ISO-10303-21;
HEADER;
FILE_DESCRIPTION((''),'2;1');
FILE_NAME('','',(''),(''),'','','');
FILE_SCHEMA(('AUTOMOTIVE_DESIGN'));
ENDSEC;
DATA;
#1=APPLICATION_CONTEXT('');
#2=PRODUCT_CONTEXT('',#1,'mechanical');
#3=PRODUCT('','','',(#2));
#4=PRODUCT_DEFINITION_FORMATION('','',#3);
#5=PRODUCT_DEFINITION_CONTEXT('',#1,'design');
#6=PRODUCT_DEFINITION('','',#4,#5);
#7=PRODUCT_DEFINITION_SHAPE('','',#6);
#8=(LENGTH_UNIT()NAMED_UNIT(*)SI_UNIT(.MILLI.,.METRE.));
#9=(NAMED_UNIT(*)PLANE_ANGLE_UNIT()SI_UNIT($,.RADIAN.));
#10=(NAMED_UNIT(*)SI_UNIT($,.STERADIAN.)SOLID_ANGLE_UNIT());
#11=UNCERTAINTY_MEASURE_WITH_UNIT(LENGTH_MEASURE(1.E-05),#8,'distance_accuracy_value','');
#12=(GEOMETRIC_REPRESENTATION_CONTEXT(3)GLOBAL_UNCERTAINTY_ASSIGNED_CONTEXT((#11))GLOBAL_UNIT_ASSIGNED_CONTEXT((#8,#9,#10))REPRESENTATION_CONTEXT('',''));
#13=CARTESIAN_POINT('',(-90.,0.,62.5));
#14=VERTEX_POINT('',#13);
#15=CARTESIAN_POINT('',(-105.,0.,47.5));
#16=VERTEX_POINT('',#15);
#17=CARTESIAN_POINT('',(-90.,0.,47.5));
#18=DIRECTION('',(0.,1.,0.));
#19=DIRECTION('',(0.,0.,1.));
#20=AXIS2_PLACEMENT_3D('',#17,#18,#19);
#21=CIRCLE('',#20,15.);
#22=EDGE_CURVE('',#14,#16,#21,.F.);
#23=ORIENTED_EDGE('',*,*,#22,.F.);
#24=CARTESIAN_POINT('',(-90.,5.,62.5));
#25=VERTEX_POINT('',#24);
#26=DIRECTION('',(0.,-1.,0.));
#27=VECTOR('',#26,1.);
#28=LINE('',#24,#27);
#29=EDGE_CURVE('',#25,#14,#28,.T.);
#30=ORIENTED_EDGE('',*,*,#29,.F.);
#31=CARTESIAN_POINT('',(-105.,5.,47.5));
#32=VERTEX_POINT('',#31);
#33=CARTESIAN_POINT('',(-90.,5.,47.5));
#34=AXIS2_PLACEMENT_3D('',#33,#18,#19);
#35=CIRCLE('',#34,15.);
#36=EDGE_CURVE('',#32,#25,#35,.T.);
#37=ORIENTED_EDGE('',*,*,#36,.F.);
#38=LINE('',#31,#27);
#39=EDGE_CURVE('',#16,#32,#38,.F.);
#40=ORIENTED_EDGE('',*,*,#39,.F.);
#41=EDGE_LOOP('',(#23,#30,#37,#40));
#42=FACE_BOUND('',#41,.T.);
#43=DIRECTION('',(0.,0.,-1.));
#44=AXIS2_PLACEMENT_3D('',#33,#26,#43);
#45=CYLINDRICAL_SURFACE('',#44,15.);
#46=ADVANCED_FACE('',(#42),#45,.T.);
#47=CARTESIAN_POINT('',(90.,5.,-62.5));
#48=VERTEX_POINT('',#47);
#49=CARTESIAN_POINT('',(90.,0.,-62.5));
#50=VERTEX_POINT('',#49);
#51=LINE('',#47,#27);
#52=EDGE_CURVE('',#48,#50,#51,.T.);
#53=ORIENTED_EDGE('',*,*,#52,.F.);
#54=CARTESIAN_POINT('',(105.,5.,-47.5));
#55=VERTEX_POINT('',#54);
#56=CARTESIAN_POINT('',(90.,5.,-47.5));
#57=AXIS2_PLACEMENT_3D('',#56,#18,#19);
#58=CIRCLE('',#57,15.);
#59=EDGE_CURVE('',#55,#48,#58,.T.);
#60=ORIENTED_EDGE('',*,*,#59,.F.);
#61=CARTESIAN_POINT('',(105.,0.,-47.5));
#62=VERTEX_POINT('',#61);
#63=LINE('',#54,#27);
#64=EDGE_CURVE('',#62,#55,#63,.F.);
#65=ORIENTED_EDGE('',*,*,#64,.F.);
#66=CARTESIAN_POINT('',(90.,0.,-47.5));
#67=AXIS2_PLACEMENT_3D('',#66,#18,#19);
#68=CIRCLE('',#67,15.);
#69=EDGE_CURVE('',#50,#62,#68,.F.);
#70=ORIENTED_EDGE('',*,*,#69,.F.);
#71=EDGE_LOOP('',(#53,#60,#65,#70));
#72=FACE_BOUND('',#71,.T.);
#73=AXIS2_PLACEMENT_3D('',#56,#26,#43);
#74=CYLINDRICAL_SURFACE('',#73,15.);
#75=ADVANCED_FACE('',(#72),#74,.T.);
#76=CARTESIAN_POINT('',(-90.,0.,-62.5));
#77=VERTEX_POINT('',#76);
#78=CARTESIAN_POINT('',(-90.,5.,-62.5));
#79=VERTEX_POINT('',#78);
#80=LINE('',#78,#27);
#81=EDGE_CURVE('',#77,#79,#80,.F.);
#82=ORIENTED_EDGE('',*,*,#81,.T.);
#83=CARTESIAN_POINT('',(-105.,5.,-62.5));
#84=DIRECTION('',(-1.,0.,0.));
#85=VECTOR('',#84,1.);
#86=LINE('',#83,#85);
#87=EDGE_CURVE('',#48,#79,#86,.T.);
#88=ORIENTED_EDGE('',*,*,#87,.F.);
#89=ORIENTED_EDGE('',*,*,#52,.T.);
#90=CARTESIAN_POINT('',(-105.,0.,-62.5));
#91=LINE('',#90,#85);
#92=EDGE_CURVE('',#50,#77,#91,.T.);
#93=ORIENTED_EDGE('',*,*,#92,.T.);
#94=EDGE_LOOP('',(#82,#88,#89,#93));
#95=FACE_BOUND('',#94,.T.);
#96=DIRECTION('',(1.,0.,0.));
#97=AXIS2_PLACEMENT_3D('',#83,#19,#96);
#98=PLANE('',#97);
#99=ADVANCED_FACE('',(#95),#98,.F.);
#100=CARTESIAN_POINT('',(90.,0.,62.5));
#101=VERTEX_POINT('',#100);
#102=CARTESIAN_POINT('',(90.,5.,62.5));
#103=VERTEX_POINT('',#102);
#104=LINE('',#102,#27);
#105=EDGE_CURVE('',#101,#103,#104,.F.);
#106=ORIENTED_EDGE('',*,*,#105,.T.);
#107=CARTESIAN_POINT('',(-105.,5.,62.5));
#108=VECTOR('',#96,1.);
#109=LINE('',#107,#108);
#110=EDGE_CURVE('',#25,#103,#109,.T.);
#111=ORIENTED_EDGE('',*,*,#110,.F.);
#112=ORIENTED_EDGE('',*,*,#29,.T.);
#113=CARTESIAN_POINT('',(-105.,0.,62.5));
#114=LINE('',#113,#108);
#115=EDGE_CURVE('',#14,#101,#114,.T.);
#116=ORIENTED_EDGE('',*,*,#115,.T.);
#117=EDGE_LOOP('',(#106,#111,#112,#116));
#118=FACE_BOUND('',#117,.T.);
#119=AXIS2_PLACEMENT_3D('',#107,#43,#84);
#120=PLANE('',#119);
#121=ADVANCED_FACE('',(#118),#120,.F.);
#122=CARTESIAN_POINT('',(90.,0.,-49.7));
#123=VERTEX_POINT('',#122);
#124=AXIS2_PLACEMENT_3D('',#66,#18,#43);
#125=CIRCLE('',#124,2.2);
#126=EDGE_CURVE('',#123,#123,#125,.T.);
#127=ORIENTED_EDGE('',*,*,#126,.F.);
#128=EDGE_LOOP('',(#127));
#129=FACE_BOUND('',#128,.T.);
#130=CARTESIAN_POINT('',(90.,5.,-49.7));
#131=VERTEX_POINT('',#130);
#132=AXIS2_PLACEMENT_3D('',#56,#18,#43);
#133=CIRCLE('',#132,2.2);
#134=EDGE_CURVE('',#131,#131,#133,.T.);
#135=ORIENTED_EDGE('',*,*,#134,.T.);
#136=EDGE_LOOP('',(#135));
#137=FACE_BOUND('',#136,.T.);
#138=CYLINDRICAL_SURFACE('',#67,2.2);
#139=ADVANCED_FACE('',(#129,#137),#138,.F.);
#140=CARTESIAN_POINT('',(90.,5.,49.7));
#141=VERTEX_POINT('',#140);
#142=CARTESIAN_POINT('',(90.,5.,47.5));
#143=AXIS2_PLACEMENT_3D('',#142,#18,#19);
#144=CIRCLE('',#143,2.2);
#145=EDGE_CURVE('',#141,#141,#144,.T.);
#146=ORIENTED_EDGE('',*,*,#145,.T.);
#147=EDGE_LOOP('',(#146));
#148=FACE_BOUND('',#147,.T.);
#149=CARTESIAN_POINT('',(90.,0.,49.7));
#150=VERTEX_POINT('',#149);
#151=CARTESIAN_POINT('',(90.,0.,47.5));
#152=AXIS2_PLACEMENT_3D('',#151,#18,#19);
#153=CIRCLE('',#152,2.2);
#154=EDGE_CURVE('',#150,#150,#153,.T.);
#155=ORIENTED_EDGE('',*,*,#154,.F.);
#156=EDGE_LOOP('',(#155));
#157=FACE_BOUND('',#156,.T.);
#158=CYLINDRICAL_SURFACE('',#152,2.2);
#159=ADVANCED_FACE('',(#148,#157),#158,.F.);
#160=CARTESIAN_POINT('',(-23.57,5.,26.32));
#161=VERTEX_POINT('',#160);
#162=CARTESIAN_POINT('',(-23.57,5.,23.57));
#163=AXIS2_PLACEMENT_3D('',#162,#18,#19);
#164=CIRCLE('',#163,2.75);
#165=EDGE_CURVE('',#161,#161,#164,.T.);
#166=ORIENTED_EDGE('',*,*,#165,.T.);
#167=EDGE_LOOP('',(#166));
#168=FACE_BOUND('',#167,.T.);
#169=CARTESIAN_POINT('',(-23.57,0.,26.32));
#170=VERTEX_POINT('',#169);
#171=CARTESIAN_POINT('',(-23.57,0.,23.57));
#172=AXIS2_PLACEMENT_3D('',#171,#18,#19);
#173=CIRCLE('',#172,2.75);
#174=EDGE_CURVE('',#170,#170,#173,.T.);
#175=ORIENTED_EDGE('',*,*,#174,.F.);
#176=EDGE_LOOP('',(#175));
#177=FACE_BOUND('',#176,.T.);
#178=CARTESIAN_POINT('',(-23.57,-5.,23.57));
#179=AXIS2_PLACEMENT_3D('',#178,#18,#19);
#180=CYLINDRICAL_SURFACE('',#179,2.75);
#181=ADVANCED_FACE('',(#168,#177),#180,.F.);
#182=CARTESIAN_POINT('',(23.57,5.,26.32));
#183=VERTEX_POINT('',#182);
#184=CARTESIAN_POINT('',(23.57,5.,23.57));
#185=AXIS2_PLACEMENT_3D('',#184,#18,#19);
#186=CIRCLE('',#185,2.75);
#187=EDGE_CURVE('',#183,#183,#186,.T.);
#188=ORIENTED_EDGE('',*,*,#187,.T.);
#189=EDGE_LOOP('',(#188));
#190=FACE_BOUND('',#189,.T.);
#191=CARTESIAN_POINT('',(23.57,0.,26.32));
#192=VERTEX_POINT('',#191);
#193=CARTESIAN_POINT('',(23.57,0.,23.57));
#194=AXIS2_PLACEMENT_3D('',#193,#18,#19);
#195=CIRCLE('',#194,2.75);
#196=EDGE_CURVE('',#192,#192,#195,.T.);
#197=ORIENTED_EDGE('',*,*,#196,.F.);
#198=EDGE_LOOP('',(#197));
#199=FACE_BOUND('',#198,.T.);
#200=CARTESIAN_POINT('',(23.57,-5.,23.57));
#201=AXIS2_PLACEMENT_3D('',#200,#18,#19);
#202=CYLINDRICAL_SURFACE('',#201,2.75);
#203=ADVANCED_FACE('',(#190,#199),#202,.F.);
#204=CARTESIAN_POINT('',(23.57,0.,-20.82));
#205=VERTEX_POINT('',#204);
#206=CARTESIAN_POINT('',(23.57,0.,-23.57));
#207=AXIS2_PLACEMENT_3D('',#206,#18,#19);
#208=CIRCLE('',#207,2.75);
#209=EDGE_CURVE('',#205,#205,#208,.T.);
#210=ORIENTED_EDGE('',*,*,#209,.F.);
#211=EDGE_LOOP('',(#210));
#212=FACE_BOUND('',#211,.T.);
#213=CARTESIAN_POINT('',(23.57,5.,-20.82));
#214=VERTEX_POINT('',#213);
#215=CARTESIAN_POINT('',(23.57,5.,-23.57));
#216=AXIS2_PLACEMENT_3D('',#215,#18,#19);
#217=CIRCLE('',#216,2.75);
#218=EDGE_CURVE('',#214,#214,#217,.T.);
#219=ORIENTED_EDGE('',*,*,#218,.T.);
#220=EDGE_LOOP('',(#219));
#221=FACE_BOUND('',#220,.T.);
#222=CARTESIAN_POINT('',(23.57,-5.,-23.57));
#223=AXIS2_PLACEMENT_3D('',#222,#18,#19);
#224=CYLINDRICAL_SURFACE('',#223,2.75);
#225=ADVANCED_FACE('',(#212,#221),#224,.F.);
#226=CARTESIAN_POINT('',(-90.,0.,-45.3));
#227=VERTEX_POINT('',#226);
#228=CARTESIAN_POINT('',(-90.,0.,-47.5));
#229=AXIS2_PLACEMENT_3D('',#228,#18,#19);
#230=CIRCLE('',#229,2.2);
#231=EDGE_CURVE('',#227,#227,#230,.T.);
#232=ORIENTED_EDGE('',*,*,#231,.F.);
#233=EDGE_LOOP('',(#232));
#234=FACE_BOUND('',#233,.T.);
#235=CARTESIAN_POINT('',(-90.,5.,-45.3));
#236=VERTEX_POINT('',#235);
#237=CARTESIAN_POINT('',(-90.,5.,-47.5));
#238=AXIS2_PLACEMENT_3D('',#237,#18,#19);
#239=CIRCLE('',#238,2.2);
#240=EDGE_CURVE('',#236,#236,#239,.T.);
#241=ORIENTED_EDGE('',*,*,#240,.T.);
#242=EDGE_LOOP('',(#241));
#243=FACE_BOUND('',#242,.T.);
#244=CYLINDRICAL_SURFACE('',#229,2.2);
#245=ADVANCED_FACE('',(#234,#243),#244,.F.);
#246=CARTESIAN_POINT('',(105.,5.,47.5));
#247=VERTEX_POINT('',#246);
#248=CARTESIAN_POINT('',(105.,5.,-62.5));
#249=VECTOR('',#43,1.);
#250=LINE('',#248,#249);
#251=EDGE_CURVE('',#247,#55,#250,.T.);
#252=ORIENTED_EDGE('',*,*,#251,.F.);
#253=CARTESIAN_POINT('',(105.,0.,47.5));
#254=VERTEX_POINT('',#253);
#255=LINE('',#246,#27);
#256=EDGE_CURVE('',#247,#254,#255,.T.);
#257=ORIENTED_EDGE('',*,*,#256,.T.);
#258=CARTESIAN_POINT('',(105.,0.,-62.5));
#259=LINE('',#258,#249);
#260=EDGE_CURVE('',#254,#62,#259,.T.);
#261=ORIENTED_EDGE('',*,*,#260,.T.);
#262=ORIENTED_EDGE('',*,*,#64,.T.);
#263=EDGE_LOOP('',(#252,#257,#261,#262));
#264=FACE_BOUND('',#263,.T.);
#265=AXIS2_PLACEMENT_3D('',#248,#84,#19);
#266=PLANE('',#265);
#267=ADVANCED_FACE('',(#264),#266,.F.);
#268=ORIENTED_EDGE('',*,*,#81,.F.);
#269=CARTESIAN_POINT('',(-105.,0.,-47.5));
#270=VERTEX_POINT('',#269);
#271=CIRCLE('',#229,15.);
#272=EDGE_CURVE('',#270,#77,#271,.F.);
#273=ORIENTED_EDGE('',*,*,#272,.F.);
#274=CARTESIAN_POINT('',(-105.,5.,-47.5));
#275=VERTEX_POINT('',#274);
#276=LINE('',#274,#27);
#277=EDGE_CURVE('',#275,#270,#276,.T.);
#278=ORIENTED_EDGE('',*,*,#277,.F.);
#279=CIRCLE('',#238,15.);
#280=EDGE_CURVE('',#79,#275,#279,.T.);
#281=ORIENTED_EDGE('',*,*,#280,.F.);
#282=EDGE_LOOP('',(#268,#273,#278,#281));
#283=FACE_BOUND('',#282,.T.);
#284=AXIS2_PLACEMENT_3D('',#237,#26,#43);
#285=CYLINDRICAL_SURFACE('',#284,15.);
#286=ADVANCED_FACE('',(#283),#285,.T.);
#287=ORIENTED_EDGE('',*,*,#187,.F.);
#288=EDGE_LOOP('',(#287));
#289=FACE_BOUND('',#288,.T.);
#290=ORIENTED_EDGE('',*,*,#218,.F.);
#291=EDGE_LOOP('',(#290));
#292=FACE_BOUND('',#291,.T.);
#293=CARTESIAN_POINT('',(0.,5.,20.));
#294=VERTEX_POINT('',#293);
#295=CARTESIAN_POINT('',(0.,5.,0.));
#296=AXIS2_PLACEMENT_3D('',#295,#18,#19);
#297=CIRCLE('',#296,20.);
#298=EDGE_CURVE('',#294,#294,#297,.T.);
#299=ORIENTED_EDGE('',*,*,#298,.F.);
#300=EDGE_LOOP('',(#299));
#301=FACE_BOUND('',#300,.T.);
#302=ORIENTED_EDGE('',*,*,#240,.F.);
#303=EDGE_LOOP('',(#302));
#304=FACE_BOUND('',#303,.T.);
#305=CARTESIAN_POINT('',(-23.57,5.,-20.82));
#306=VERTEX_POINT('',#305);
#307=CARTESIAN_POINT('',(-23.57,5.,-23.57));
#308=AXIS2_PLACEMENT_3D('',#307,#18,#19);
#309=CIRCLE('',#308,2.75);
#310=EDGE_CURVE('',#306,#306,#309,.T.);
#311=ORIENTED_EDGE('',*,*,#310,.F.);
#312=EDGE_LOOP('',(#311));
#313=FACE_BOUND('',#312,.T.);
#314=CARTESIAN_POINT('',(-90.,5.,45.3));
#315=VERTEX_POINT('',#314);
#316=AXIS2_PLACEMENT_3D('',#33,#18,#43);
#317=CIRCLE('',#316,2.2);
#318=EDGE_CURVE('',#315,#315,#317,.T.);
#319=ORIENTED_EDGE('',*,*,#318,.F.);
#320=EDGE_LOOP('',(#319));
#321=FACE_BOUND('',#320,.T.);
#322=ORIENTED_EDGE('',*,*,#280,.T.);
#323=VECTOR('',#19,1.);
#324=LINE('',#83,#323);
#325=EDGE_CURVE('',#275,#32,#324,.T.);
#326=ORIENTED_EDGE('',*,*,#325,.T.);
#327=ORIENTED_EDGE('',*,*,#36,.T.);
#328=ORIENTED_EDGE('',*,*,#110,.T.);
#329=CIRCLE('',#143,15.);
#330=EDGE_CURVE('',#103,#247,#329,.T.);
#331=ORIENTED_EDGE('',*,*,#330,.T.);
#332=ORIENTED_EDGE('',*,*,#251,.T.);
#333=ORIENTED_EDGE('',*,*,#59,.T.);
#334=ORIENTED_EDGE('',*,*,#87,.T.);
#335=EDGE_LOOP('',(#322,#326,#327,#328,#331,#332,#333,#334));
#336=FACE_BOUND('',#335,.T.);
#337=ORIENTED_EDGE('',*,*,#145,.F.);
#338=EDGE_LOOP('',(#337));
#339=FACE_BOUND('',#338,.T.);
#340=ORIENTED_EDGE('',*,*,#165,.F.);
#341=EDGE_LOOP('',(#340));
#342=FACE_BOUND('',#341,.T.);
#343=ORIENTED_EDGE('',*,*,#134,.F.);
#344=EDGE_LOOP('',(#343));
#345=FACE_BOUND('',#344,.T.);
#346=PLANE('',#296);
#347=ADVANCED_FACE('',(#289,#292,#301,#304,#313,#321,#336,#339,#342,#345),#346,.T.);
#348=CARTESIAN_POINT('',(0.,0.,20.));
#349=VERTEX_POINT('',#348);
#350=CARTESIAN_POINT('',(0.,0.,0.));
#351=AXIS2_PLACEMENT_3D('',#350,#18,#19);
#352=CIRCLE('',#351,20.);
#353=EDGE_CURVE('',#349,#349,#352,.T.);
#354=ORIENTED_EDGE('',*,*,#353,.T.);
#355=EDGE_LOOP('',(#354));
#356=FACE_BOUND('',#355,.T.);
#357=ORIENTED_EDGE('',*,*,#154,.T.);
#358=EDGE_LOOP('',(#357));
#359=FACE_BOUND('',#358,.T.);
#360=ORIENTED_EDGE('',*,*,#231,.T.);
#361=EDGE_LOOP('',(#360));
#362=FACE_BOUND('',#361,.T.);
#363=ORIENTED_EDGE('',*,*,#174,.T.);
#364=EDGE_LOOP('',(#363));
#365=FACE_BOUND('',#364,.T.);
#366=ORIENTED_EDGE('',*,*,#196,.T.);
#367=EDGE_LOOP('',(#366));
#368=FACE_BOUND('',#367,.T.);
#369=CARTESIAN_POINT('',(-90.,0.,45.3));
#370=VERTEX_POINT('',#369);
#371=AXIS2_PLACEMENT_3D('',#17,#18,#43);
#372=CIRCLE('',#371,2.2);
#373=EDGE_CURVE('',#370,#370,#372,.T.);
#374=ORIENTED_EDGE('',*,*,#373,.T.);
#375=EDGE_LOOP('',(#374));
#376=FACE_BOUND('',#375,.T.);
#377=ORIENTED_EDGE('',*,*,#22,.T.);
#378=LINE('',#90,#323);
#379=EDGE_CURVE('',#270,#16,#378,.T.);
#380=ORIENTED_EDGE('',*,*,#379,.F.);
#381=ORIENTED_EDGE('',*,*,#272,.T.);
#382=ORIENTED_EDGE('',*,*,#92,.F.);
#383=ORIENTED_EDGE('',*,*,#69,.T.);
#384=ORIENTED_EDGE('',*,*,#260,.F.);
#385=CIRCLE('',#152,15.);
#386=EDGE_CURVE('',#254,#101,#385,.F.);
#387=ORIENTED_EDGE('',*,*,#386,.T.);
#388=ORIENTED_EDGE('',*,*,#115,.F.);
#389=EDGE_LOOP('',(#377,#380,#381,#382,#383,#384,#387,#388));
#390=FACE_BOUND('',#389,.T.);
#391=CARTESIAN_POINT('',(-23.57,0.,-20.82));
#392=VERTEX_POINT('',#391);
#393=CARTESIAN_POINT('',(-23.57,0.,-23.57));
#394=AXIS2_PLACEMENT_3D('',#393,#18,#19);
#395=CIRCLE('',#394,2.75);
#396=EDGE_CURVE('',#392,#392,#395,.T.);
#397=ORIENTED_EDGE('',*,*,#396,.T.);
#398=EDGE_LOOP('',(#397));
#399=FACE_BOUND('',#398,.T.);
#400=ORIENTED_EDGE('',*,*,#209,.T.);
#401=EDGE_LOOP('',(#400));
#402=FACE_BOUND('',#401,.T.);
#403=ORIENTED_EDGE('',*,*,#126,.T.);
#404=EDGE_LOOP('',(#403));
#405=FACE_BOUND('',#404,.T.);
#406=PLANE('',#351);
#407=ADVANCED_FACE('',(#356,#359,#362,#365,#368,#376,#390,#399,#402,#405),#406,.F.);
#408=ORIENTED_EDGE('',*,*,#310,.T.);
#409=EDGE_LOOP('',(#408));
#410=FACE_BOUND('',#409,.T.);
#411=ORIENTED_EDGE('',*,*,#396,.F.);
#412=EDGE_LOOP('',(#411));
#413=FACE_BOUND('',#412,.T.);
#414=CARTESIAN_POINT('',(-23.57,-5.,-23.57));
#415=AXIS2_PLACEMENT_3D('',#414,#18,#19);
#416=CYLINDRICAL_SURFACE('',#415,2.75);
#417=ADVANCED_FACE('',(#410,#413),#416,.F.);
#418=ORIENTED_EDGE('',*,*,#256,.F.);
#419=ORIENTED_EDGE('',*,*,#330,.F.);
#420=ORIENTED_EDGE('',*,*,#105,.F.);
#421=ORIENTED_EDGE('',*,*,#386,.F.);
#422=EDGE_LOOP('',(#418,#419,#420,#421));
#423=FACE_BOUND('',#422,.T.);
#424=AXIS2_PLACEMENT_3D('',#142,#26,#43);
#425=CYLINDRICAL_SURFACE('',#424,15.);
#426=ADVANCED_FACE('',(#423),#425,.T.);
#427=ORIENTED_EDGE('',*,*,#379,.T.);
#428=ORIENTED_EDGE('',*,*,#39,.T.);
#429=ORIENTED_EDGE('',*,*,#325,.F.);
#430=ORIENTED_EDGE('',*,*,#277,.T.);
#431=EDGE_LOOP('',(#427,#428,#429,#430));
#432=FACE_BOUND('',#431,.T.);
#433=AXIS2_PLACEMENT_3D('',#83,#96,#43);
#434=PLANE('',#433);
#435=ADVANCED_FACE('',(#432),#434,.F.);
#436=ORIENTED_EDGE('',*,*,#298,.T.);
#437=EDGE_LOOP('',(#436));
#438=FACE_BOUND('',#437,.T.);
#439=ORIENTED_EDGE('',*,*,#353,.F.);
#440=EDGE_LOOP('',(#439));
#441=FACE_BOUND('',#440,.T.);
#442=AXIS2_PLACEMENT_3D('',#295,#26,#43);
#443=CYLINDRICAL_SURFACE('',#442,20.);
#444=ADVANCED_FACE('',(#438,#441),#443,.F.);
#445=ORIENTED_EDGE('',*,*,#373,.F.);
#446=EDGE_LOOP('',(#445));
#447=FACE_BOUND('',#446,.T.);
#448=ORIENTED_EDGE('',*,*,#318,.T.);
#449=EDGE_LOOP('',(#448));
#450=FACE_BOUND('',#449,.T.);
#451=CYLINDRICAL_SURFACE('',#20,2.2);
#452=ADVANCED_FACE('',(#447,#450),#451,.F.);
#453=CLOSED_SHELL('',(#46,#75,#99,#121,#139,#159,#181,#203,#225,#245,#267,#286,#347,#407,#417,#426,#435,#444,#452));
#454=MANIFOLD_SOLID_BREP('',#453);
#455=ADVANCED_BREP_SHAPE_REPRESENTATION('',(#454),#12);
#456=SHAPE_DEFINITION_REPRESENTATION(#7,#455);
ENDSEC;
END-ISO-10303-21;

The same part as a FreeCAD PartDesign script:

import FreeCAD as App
import Part
import Sketcher
from FreeCAD import Vector


def edges_at(feature, points):
    """Names of the edges that pass closest to the given points."""
    edges = feature.Shape.Edges
    near = lambda p: min(range(len(edges)), key=lambda i: edges[i].distToShape(Part.Vertex(*p))[0])
    return sorted({f"Edge{near(p) + 1}" for p in points})

doc = App.newDocument("Part")
body = doc.addObject("PartDesign::Body", "Body")

sketch1 = body.newObject("Sketcher::SketchObject", "Sketch")
sketch1.AttachmentSupport = (doc.getObject("XZ_Plane"), [""])
sketch1.MapMode = "FlatFace"
sketch1.addGeometry([
    Part.Circle(Vector(0, 0, 0), Vector(0, 0, 1), 60),
    Part.Circle(Vector(0, 0, 0), Vector(0, 0, 1), 20),
], False)
sketch1.addConstraint([
    Sketcher.Constraint("Coincident", 0, 3, -1, 1),
    Sketcher.Constraint("Coincident", 1, 3, -1, 1),
    Sketcher.Constraint("Diameter", 0, 120.0),
    Sketcher.Constraint("Diameter", 1, 40.0),
])
pad1 = body.newObject("PartDesign::Pad", "Pad")
pad1.Profile = sketch1
pad1.Length = 5
pad1.Reversed = True

sketch2 = body.newObject("Sketcher::SketchObject", "Sketch001")
sketch2.AttachmentSupport = (doc.getObject("XZ_Plane"), [""])
sketch2.MapMode = "FlatFace"
sketch2.addGeometry([
    Part.LineSegment(Vector(-105, -62, 0), Vector(-105, 62, 0)),
    Part.LineSegment(Vector(-105, 62, 0), Vector(105, 62, 0)),
    Part.LineSegment(Vector(105, 62, 0), Vector(105, -62, 0)),
    Part.LineSegment(Vector(105, -62, 0), Vector(-105, -62, 0)),
    Part.Circle(Vector(0, 0, 0), Vector(0, 0, 1), 60),
], False)
sketch2.addConstraint([
    Sketcher.Constraint("Coincident", 0, 2, 1, 1),
    Sketcher.Constraint("Coincident", 1, 2, 2, 1),
    Sketcher.Constraint("Coincident", 2, 2, 3, 1),
    Sketcher.Constraint("Coincident", 3, 2, 0, 1),
    Sketcher.Constraint("Vertical", 0),
    Sketcher.Constraint("Horizontal", 1),
    Sketcher.Constraint("Vertical", 2),
    Sketcher.Constraint("Horizontal", 3),
    Sketcher.Constraint("Coincident", 4, 3, -1, 1),
    Sketcher.Constraint("Symmetric", 0, 2, 2, 2, -1, 1),
    Sketcher.Constraint("Diameter", 4, 120.0),
    Sketcher.Constraint("DistanceX", 1, 1, 1, 2, 210.0),
    Sketcher.Constraint("DistanceY", 0, 1, 0, 2, 125.0),
])
pad2 = body.newObject("PartDesign::Pad", "Pad001")
pad2.Profile = sketch2
pad2.Length = 5
pad2.Reversed = True

sketch3 = body.newObject("Sketcher::SketchObject", "Sketch002")
sketch3.AttachmentSupport = (doc.getObject("XZ_Plane"), [""])
sketch3.MapMode = "FlatFace"
sketch3.AttachmentOffset = App.Placement(Vector(0, 0, -5), App.Rotation())
sketch3.addGeometry([
    Part.Circle(Vector(-90, -47.5, 0), Vector(0, 0, 1), 2.2),
    Part.Circle(Vector(90, -47.5, 0), Vector(0, 0, 1), 2.2),
    Part.Circle(Vector(90, 47.5, 0), Vector(0, 0, 1), 2.2),
    Part.Circle(Vector(-90, 47.5, 0), Vector(0, 0, 1), 2.2),
], False)
sketch3.addConstraint([
    Sketcher.Constraint("Equal", 0, 1),
    Sketcher.Constraint("Equal", 1, 2),
    Sketcher.Constraint("Equal", 2, 3),
    Sketcher.Constraint("Symmetric", 0, 3, 2, 3, -1, 1),
    Sketcher.Constraint("Symmetric", 1, 3, 3, 3, -1, 1),
    Sketcher.Constraint("Symmetric", 0, 3, 1, 3, -2),
    Sketcher.Constraint("Diameter", 0, 4.4),
    Sketcher.Constraint("DistanceX", 0, 3, -1, 1, 90.0),
    Sketcher.Constraint("DistanceY", 1, 3, 2, 3, 95.0),
])
pocket1 = body.newObject("PartDesign::Pocket", "Pocket")
pocket1.Profile = sketch3
pocket1.Length = 5
pocket1.Reversed = True
doc.recompute()

fillet = body.newObject("PartDesign::Fillet", "Fillet")
fillet.Base = (pocket1, edges_at(pocket1, [
    (-105, 2.5, -62.5),
    (-105, 2.5, 62.5),
    (105, 2.5, 62.5),
    (105, 2.5, -62.5),
]))
fillet.Radius = 15

sketch4 = body.newObject("Sketcher::SketchObject", "Sketch003")
sketch4.AttachmentSupport = (doc.getObject("XZ_Plane"), [""])
sketch4.MapMode = "FlatFace"
sketch4.AttachmentOffset = App.Placement(Vector(0, 0, -5), App.Rotation())
sketch4.addGeometry([
    Part.Circle(Vector(-23.6, -23.6, 0), Vector(0, 0, 1), 2.8),
    Part.Circle(Vector(23.6, -23.6, 0), Vector(0, 0, 1), 2.8),
    Part.Circle(Vector(23.6, 23.6, 0), Vector(0, 0, 1), 2.8),
    Part.Circle(Vector(-23.6, 23.6, 0), Vector(0, 0, 1), 2.8),
], False)
sketch4.addConstraint([
    Sketcher.Constraint("Equal", 0, 1),
    Sketcher.Constraint("Equal", 1, 2),
    Sketcher.Constraint("Equal", 2, 3),
    Sketcher.Constraint("Symmetric", 0, 3, 2, 3, -1, 1),
    Sketcher.Constraint("Symmetric", 1, 3, 3, 3, -1, 1),
    Sketcher.Constraint("Symmetric", 0, 3, 1, 3, -2),
    Sketcher.Constraint("Diameter", 0, 5.5),
    Sketcher.Constraint("DistanceX", 0, 3, -1, 1, 23.57),
    Sketcher.Constraint("DistanceY", 0, 3, -1, 1, 23.57),
])
pocket2 = body.newObject("PartDesign::Pocket", "Pocket001")
pocket2.Profile = sketch4
pocket2.Length = 10
pocket2.Reversed = True

doc.recompute()
